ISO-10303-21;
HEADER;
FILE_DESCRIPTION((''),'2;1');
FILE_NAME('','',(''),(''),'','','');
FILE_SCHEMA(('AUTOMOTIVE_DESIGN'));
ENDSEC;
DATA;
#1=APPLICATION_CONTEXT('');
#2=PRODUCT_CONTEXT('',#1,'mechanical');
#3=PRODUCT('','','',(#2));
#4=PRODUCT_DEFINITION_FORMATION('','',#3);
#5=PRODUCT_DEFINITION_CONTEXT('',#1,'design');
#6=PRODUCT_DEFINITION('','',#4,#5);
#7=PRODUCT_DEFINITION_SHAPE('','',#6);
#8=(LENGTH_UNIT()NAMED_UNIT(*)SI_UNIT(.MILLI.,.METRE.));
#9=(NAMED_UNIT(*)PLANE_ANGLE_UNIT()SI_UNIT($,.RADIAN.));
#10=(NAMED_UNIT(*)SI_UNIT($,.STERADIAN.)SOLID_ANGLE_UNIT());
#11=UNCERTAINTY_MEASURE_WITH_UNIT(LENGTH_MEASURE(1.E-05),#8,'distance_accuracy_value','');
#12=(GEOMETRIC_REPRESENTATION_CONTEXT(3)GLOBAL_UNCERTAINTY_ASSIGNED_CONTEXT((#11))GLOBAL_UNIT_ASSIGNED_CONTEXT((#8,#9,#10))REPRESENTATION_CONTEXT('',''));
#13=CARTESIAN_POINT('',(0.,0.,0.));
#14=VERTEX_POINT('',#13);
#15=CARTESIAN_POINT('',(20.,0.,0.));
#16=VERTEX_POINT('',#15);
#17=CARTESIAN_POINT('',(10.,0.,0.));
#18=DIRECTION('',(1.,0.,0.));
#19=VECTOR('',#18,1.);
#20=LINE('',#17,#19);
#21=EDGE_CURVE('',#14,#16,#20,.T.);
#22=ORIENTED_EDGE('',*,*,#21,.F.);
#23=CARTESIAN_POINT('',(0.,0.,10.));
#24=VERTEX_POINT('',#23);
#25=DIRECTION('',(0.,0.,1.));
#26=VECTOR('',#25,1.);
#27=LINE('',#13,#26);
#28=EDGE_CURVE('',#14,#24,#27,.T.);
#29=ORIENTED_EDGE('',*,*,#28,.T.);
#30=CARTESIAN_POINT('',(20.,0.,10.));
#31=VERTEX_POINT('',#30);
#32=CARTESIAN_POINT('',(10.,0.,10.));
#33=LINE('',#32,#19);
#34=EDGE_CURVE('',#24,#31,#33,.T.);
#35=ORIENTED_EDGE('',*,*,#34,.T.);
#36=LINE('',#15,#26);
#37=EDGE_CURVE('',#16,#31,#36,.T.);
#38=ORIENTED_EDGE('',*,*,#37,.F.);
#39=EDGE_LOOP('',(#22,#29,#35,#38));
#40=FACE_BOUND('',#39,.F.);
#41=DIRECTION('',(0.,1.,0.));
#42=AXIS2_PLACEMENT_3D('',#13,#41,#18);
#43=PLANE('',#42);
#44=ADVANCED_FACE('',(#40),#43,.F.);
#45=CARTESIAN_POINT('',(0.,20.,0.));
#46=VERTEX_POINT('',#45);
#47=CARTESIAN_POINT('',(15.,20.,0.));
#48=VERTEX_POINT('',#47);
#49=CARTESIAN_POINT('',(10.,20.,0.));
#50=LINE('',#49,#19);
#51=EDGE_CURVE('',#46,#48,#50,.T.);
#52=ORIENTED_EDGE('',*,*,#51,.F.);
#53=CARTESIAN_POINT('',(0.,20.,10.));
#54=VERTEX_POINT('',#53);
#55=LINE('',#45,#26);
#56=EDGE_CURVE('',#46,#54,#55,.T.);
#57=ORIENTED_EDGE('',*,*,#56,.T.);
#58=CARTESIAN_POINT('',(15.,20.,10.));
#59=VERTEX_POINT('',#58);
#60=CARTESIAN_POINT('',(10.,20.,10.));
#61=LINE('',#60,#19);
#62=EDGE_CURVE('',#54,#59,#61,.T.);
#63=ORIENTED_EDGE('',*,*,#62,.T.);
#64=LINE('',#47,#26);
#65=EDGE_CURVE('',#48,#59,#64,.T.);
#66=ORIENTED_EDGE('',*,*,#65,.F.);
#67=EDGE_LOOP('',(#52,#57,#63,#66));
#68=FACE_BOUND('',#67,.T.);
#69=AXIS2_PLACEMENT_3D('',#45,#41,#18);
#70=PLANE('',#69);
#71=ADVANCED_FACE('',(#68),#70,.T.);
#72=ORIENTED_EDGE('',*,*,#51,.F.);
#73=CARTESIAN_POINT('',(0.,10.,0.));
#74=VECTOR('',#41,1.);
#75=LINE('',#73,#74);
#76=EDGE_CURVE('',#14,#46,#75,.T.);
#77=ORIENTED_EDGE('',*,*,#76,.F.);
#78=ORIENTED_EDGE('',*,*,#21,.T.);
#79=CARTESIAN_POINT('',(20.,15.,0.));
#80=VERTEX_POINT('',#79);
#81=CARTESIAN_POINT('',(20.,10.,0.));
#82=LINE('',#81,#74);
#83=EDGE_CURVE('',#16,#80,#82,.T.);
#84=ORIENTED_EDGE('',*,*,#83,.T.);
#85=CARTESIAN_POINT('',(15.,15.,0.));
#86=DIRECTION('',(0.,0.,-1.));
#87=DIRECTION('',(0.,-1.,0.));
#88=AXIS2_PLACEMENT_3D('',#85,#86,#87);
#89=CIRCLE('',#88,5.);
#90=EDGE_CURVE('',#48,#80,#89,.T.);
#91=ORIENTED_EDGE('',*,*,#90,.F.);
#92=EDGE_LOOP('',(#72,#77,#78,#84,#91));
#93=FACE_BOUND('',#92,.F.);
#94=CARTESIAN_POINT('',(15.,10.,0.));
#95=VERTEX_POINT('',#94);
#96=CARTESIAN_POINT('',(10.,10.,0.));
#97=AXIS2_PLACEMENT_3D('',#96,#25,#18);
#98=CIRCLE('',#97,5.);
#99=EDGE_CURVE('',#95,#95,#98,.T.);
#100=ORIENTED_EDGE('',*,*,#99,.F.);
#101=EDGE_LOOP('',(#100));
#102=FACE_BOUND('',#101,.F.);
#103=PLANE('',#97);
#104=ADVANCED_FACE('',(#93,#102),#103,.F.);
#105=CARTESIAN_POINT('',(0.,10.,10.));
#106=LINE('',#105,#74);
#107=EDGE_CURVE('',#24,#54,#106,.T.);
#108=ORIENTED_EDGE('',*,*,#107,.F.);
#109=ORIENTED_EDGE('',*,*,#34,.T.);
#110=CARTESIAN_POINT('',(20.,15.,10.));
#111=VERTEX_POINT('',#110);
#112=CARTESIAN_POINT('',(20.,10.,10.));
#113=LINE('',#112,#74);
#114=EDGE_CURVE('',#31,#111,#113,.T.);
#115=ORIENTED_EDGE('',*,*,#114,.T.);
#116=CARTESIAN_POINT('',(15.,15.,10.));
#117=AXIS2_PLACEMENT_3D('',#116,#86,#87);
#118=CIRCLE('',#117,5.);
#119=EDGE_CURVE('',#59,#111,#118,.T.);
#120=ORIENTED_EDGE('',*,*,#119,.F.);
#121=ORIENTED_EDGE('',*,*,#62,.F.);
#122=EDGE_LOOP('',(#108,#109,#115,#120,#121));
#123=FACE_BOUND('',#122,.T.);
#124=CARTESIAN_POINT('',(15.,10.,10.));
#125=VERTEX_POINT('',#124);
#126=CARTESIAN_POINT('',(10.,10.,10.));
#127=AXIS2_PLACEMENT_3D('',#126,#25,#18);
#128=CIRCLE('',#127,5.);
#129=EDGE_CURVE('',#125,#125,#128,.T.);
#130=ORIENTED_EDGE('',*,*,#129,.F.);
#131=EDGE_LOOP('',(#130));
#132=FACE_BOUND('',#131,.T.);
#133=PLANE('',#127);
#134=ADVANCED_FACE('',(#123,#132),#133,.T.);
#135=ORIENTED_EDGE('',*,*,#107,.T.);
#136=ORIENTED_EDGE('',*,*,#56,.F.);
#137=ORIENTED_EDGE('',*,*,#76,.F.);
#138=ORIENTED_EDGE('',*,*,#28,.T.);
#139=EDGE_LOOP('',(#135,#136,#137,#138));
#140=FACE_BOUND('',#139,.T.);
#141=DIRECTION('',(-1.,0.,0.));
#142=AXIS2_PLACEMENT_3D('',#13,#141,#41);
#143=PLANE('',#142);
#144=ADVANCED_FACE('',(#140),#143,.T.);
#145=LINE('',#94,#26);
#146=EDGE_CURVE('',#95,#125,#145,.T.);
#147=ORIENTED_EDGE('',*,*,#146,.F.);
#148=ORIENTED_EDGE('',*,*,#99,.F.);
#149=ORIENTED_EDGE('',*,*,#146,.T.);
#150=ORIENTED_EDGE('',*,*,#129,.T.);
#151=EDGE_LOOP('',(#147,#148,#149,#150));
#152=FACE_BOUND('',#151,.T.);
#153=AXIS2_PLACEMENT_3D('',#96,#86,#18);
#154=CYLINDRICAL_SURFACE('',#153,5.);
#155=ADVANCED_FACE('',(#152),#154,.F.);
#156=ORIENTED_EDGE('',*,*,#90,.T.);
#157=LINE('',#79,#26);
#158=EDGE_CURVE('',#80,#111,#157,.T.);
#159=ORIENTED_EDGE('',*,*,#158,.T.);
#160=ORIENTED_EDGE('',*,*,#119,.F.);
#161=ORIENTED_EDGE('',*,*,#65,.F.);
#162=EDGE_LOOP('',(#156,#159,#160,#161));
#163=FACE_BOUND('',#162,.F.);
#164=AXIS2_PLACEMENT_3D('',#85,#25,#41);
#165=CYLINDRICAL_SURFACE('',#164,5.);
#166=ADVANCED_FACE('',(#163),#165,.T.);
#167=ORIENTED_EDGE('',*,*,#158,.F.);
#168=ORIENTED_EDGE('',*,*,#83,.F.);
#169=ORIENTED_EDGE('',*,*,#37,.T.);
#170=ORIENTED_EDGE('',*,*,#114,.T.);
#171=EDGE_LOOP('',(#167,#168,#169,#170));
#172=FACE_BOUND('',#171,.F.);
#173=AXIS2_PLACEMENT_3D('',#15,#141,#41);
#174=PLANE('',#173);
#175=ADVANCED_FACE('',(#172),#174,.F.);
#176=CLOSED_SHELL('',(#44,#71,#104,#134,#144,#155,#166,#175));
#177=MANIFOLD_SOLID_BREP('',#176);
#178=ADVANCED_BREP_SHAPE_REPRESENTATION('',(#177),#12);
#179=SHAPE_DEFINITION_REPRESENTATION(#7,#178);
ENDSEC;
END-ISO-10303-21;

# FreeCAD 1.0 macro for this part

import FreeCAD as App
import Part
import Sketcher
from FreeCAD import Vector


def edges_at(feature, points):
    """Names of the edges that pass closest to the given points."""
    edges = feature.Shape.Edges
    near = lambda p: min(range(len(edges)), key=lambda i: edges[i].distToShape(Part.Vertex(*p))[0])
    return sorted({f"Edge{near(p) + 1}" for p in points})

doc = App.newDocument("Part")
params = doc.addObject("Spreadsheet::Sheet", "Params")
for row, (alias, value) in enumerate([
    ("sketch1_diameter", "10 mm"),
    ("sketch1_width", "20 mm"),
    ("pad1_length", "10 mm"),
    ("fillet_radius", "5 mm"),
], start=1):
    params.set(f"A{row}", alias)
    params.set(f"B{row}", "=" + value)
    params.setAlias(f"B{row}", alias)

body = doc.addObject("PartDesign::Body", "Body")

sketch1 = body.newObject("Sketcher::SketchObject", "Sketch")
sketch1.AttachmentSupport = (doc.getObject("XY_Plane"), [""])
sketch1.MapMode = "FlatFace"
sketch1.addGeometry(Part.LineSegment(Vector(0, 20, 0), Vector(0, 0, 0)), False)
sketch1.addGeometry(Part.LineSegment(Vector(0, 0, 0), Vector(20, 0, 0)), False)
sketch1.addGeometry(Part.LineSegment(Vector(20, 0, 0), Vector(20, 20, 0)), False)
sketch1.addGeometry(Part.LineSegment(Vector(20, 20, 0), Vector(0, 20, 0)), False)
sketch1.addGeometry(Part.Circle(Vector(10, 10, 0), Vector(0, 0, 1), 5), False)
sketch1.addConstraint(Sketcher.Constraint("Coincident", 0, 2, 1, 1))
sketch1.addConstraint(Sketcher.Constraint("Coincident", 1, 2, 2, 1))
sketch1.addConstraint(Sketcher.Constraint("Coincident", 2, 2, 3, 1))
sketch1.addConstraint(Sketcher.Constraint("Coincident", 3, 2, 0, 1))
sketch1.addConstraint(Sketcher.Constraint("Vertical", 0))
sketch1.addConstraint(Sketcher.Constraint("Horizontal", 1))
sketch1.addConstraint(Sketcher.Constraint("Vertical", 2))
sketch1.addConstraint(Sketcher.Constraint("Horizontal", 3))
sketch1.addConstraint(Sketcher.Constraint("Coincident", 0, 2, -1, 1))
sketch1.addConstraint(Sketcher.Constraint("Equal", 3, 0))
sketch1.addConstraint(Sketcher.Constraint("Diameter", 4, 10.0))
sketch1.addConstraint(Sketcher.Constraint("DistanceX", 1, 1, 1, 2, 20.0))
sketch1.addConstraint(Sketcher.Constraint("DistanceX", -1, 1, 4, 3, 10.0))
sketch1.addConstraint(Sketcher.Constraint("DistanceY", -1, 1, 4, 3, 10.0))
sketch1.setExpression("Constraints[10]", "Params.sketch1_diameter")
sketch1.setExpression("Constraints[11]", "Params.sketch1_width")
pad1 = body.newObject("PartDesign::Pad", "Pad")
pad1.Profile = sketch1
pad1.setExpression("Length", "Params.pad1_length")
doc.recompute()

fillet = body.newObject("PartDesign::Fillet", "Fillet")
fillet.Base = (pad1, edges_at(pad1, [(20, 20, 5)]))
fillet.setExpression("Radius", "Params.fillet_radius")

doc.recompute()
